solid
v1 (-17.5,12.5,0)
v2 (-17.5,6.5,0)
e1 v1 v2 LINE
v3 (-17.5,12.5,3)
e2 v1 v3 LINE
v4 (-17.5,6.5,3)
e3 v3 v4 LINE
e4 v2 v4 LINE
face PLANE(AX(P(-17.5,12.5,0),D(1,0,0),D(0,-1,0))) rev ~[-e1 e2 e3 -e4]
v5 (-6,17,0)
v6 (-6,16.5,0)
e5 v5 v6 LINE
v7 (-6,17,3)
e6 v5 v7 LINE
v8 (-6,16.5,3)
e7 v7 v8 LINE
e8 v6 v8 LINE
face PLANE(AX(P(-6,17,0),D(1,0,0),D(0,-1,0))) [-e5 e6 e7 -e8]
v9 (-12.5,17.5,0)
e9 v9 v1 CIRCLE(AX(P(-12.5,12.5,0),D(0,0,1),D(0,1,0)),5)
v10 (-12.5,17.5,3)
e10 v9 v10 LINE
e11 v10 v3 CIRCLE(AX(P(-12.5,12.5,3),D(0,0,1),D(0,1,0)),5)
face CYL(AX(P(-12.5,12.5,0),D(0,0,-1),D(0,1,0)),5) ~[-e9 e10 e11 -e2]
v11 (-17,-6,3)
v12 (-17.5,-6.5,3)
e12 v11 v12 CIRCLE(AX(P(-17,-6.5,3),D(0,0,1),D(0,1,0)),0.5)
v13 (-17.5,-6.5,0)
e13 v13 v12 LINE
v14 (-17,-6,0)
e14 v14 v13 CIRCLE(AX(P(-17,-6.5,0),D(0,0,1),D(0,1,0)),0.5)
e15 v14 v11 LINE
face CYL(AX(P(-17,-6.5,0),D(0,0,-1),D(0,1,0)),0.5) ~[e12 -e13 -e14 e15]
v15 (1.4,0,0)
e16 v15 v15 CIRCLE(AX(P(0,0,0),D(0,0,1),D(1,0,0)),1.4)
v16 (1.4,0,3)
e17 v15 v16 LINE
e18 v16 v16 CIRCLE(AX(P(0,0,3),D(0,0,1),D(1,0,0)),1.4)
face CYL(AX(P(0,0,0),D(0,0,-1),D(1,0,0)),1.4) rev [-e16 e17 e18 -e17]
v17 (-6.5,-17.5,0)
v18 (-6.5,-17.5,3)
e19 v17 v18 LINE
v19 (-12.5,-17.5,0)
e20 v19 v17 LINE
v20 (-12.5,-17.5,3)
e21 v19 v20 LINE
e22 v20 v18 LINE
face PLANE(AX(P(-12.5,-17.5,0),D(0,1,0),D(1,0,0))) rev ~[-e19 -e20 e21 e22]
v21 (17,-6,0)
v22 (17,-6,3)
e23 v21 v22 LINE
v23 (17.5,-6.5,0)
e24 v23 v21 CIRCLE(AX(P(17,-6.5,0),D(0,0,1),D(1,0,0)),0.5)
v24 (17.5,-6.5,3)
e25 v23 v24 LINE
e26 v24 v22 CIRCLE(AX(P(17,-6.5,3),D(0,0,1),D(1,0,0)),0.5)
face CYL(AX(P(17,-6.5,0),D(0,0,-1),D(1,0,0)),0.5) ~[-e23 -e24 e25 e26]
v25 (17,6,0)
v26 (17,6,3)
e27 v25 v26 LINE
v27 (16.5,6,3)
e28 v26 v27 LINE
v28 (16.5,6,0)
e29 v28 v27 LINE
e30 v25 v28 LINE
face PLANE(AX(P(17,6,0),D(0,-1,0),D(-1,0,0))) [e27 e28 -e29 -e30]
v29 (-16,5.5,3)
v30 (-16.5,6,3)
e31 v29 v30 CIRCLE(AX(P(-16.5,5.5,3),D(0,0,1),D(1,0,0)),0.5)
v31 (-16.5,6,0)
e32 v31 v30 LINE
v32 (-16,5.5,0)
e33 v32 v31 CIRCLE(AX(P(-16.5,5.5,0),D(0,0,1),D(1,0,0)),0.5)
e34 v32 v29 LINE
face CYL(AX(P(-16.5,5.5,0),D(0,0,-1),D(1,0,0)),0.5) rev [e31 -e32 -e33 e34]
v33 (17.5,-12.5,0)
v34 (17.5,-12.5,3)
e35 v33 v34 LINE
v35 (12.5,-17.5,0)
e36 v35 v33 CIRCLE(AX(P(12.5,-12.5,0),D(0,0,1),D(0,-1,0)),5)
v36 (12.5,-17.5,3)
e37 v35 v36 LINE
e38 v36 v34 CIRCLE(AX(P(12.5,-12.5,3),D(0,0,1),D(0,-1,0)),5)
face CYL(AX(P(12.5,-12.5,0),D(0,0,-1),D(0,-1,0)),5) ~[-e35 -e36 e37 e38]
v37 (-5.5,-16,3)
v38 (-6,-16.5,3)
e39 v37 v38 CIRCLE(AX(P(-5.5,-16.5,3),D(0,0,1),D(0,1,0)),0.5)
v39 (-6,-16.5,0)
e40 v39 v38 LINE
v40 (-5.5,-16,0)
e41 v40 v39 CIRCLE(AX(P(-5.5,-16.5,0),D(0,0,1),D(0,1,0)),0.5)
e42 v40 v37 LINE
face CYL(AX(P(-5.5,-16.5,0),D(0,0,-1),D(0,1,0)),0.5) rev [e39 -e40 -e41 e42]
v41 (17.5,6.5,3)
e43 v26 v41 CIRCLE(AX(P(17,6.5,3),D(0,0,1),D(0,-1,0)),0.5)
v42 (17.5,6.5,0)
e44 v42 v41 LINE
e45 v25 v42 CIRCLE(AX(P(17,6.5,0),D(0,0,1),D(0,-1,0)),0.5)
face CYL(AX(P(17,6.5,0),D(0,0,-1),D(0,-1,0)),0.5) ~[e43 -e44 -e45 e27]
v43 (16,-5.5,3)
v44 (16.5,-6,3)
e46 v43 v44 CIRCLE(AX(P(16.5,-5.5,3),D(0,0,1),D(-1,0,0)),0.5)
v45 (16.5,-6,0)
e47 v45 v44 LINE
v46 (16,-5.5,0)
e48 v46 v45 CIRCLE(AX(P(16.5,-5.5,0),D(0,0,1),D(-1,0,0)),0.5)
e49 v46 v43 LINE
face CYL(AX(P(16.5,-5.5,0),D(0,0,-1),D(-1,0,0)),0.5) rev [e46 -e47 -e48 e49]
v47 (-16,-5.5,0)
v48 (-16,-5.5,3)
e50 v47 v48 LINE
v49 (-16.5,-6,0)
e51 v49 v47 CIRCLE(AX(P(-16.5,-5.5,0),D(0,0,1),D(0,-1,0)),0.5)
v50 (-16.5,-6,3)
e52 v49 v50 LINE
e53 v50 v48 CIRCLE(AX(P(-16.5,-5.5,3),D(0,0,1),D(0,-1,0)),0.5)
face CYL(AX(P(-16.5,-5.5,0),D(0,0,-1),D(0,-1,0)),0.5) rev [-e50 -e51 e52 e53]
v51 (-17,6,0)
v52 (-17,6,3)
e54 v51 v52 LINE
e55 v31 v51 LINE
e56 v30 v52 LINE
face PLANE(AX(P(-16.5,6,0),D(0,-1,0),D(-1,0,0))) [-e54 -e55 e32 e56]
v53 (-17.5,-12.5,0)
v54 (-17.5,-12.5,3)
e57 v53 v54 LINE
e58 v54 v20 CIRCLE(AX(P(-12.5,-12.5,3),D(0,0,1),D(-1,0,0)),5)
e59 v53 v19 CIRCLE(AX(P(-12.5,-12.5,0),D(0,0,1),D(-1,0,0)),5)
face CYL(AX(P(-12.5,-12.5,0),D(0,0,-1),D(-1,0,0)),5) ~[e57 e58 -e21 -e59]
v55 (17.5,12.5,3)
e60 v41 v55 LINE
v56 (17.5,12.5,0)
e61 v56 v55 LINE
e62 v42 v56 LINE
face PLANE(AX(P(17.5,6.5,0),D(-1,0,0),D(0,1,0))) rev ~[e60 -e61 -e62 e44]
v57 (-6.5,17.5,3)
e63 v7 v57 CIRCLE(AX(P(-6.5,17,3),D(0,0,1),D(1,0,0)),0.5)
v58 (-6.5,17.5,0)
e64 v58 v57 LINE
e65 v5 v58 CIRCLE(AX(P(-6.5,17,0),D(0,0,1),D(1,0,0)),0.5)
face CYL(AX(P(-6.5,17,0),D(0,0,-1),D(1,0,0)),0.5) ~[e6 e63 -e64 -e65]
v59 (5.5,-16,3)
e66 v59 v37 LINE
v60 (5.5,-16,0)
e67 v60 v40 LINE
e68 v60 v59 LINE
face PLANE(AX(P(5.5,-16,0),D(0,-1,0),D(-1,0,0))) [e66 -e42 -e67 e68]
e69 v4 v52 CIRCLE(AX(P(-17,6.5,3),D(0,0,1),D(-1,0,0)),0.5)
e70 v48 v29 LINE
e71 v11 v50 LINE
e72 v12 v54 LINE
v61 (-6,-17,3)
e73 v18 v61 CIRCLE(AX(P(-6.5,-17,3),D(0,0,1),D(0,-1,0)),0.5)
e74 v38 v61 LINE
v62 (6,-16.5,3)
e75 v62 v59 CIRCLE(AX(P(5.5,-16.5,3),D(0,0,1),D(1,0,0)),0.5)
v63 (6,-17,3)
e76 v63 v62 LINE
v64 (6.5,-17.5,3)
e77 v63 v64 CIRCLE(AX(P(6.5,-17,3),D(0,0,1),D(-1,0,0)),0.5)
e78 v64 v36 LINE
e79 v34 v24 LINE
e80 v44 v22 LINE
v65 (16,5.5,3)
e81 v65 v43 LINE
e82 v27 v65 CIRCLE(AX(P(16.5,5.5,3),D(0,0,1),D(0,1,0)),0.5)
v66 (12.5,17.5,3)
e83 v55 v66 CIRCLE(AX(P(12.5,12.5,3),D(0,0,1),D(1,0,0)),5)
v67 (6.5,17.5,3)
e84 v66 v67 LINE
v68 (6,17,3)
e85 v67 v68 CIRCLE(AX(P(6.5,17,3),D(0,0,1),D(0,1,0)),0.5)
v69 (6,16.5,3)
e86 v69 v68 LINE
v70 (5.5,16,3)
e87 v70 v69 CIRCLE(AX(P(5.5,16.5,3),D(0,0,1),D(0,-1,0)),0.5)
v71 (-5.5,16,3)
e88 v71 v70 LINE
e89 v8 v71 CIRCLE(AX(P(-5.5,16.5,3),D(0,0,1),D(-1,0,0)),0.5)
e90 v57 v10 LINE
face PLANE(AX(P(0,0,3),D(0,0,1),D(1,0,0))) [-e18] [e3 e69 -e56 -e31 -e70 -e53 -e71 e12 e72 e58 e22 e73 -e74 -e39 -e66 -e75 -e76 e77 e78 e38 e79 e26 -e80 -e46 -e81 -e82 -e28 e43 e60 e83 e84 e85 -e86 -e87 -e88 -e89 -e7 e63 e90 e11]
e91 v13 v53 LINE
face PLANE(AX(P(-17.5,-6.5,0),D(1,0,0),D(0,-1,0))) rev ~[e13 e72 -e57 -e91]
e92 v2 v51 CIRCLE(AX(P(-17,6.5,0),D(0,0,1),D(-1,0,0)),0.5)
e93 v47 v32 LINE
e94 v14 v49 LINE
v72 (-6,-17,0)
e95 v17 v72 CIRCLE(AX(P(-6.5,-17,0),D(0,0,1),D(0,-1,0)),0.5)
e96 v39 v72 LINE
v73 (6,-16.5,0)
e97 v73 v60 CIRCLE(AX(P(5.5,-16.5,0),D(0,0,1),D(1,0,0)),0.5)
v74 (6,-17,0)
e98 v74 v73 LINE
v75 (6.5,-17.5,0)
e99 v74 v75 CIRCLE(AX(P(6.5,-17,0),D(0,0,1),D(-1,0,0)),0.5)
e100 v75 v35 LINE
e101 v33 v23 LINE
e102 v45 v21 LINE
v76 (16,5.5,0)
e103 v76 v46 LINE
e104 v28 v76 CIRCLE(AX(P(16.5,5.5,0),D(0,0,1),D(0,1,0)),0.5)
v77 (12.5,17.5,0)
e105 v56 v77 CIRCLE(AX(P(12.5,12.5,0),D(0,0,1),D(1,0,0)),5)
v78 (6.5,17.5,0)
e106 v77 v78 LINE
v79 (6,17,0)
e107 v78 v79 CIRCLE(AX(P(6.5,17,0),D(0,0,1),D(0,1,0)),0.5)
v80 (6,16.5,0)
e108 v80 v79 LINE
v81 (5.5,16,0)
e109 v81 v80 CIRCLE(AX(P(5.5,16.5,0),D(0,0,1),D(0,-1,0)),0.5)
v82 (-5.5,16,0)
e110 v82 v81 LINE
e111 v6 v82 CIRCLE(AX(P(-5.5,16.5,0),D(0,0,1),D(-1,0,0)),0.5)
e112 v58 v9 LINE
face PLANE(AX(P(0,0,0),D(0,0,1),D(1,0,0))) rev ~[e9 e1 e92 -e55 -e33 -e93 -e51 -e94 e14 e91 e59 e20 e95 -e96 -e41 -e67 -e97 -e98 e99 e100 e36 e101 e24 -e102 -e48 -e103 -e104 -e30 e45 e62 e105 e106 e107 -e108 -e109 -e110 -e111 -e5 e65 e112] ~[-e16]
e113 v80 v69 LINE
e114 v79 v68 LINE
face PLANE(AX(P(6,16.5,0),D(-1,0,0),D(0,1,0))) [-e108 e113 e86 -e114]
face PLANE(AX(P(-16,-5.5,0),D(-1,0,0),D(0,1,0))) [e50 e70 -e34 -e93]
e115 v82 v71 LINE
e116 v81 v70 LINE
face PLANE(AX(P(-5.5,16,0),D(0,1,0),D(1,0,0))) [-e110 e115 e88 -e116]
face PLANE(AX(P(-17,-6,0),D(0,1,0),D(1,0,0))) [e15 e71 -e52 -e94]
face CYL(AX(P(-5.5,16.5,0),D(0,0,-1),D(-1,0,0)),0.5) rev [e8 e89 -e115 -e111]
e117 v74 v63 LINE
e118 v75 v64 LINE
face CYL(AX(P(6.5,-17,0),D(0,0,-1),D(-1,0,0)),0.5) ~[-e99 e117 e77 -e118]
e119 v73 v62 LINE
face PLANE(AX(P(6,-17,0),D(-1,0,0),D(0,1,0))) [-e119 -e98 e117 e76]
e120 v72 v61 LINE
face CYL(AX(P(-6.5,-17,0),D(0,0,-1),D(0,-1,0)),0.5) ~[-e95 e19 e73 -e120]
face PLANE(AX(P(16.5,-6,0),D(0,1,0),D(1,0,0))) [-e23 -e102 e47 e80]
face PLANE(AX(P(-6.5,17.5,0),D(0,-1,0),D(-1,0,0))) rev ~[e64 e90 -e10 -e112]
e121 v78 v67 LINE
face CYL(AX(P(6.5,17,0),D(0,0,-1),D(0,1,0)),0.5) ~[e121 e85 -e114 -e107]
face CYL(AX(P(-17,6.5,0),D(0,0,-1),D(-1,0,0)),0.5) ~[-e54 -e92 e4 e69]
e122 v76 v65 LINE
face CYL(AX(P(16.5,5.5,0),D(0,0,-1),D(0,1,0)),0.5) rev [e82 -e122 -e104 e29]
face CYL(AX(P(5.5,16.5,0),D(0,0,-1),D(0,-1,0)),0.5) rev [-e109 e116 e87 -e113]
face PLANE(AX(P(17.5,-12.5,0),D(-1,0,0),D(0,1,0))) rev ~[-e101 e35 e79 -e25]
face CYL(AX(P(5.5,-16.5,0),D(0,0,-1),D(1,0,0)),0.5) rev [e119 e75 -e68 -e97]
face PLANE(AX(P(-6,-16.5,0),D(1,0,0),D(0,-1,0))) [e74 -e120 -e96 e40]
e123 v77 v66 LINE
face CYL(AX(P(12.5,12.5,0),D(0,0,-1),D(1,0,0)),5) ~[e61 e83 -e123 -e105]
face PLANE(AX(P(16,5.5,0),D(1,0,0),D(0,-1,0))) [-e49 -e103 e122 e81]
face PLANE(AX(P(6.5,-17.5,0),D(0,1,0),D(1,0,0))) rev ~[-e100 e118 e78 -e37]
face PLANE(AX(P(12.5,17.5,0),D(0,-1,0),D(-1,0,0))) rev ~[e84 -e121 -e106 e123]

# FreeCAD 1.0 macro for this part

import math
import FreeCAD as App
import Part
import Sketcher
from FreeCAD import Vector

doc = App.newDocument("Part")
body = doc.addObject("PartDesign::Body", "Body")

sketch1 = body.newObject("Sketcher::SketchObject", "Sketch")
sketch1.AttachmentSupport = (doc.getObject("XY_Plane"), [""])
sketch1.MapMode = "FlatFace"
sketch1.addGeometry(Part.LineSegment(Vector(-16.5, -6, 0), Vector(-17, -6, 0)), False)
sketch1.addGeometry(Part.ArcOfCircle(Part.Circle(Vector(-17, -6.5, 0), Vector(0, 0, 1), 0.5), math.radians(90), math.radians(180)), False)
sketch1.addGeometry(Part.LineSegment(Vector(-17.5, -6.5, 0), Vector(-17.5, -12.5, 0)), False)
sketch1.addGeometry(Part.ArcOfCircle(Part.Circle(Vector(-12.5, -12.5, 0), Vector(0, 0, 1), 5), math.radians(180), math.radians(270)), False)
sketch1.addGeometry(Part.LineSegment(Vector(-12.5, -17.5, 0), Vector(-6.5, -17.5, 0)), False)
sketch1.addGeometry(Part.ArcOfCircle(Part.Circle(Vector(-6.5, -17, 0), Vector(0, 0, 1), 0.5), math.radians(-90), math.radians(0)), False)
sketch1.addGeometry(Part.LineSegment(Vector(-6, -17, 0), Vector(-6, -16.5, 0)), False)
sketch1.addGeometry(Part.ArcOfCircle(Part.Circle(Vector(-5.5, -16.5, 0), Vector(0, 0, 1), 0.5), math.radians(90), math.radians(180)), False)
sketch1.addGeometry(Part.LineSegment(Vector(-5.5, -16, 0), Vector(5.5, -16, 0)), False)
sketch1.addGeometry(Part.ArcOfCircle(Part.Circle(Vector(5.5, -16.5, 0), Vector(0, 0, 1), 0.5), math.radians(0), math.radians(90)), False)
sketch1.addGeometry(Part.LineSegment(Vector(6, -16.5, 0), Vector(6, -17, 0)), False)
sketch1.addGeometry(Part.ArcOfCircle(Part.Circle(Vector(6.5, -17, 0), Vector(0, 0, 1), 0.5), math.radians(180), math.radians(270)), False)
sketch1.addGeometry(Part.LineSegment(Vector(6.5, -17.5, 0), Vector(12.5, -17.5, 0)), False)
sketch1.addGeometry(Part.ArcOfCircle(Part.Circle(Vector(12.5, -12.5, 0), Vector(0, 0, 1), 5), math.radians(-90), math.radians(0)), False)
sketch1.addGeometry(Part.LineSegment(Vector(17.5, -12.5, 0), Vector(17.5, -6.5, 0)), False)
sketch1.addGeometry(Part.ArcOfCircle(Part.Circle(Vector(17, -6.5, 0), Vector(0, 0, 1), 0.5), math.radians(0), math.radians(90)), False)
sketch1.addGeometry(Part.LineSegment(Vector(17, -6, 0), Vector(16.5, -6, 0)), False)
sketch1.addGeometry(Part.ArcOfCircle(Part.Circle(Vector(16.5, -5.5, 0), Vector(0, 0, 1), 0.5), math.radians(180), math.radians(270)), False)
sketch1.addGeometry(Part.LineSegment(Vector(16, -5.5, 0), Vector(16, 5.5, 0)), False)
sketch1.addGeometry(Part.ArcOfCircle(Part.Circle(Vector(16.5, 5.5, 0), Vector(0, 0, 1), 0.5), math.radians(90), math.radians(180)), False)
sketch1.addGeometry(Part.LineSegment(Vector(16.5, 6, 0), Vector(17, 6, 0)), False)
sketch1.addGeometry(Part.ArcOfCircle(Part.Circle(Vector(17, 6.5, 0), Vector(0, 0, 1), 0.5), math.radians(-90), math.radians(0)), False)
sketch1.addGeometry(Part.LineSegment(Vector(17.5, 6.5, 0), Vector(17.5, 12.5, 0)), False)
sketch1.addGeometry(Part.ArcOfCircle(Part.Circle(Vector(12.5, 12.5, 0), Vector(0, 0, 1), 5), math.radians(0), math.radians(90)), False)
sketch1.addGeometry(Part.LineSegment(Vector(12.5, 17.5, 0), Vector(6.5, 17.5, 0)), False)
sketch1.addGeometry(Part.ArcOfCircle(Part.Circle(Vector(6.5, 17, 0), Vector(0, 0, 1), 0.5), math.radians(90), math.radians(180)), False)
sketch1.addGeometry(Part.LineSegment(Vector(6, 17, 0), Vector(6, 16.5, 0)), False)
sketch1.addGeometry(Part.ArcOfCircle(Part.Circle(Vector(5.5, 16.5, 0), Vector(0, 0, 1), 0.5), math.radians(-90), math.radians(0)), False)
sketch1.addGeometry(Part.LineSegment(Vector(5.5, 16, 0), Vector(-5.5, 16, 0)), False)
sketch1.addGeometry(Part.ArcOfCircle(Part.Circle(Vector(-5.5, 16.5, 0), Vector(0, 0, 1), 0.5), math.radians(180), math.radians(270)), False)
sketch1.addGeometry(Part.LineSegment(Vector(-6, 16.5, 0), Vector(-6, 17, 0)), False)
sketch1.addGeometry(Part.ArcOfCircle(Part.Circle(Vector(-6.5, 17, 0), Vector(0, 0, 1), 0.5), math.radians(0), math.radians(90)), False)
sketch1.addGeometry(Part.LineSegment(Vector(-6.5, 17.5, 0), Vector(-12.5, 17.5, 0)), False)
sketch1.addGeometry(Part.ArcOfCircle(Part.Circle(Vector(-12.5, 12.5, 0), Vector(0, 0, 1), 5), math.radians(90), math.radians(180)), False)
sketch1.addGeometry(Part.LineSegment(Vector(-17.5, 12.5, 0), Vector(-17.5, 6.5, 0)), False)
sketch1.addGeometry(Part.ArcOfCircle(Part.Circle(Vector(-17, 6.5, 0), Vector(0, 0, 1), 0.5), math.radians(180), math.radians(270)), False)
sketch1.addGeometry(Part.LineSegment(Vector(-17, 6, 0), Vector(-16.5, 6, 0)), False)
sketch1.addGeometry(Part.ArcOfCircle(Part.Circle(Vector(-16.5, 5.5, 0), Vector(0, 0, 1), 0.5), math.radians(0), math.radians(90)), False)
sketch1.addGeometry(Part.LineSegment(Vector(-16, 5.5, 0), Vector(-16, -5.5, 0)), False)
sketch1.addGeometry(Part.ArcOfCircle(Part.Circle(Vector(-16.5, -5.5, 0), Vector(0, 0, 1), 0.5), math.radians(-90), math.radians(0)), False)
sketch1.addGeometry(Part.Circle(Vector(0, 0, 0), Vector(0, 0, 1), 1.4), False)
sketch1.addConstraint(Sketcher.Constraint("Tangent", 0, 2, 1, 1))
sketch1.addConstraint(Sketcher.Constraint("Tangent", 1, 2, 2, 1))
sketch1.addConstraint(Sketcher.Constraint("Tangent", 2, 2, 3, 1))
sketch1.addConstraint(Sketcher.Constraint("Tangent", 3, 2, 4, 1))
sketch1.addConstraint(Sketcher.Constraint("Tangent", 4, 2, 5, 1))
sketch1.addConstraint(Sketcher.Constraint("Tangent", 5, 2, 6, 1))
sketch1.addConstraint(Sketcher.Constraint("Tangent", 6, 2, 7, 2))
sketch1.addConstraint(Sketcher.Constraint("Tangent", 7, 1, 8, 1))
sketch1.addConstraint(Sketcher.Constraint("Tangent", 8, 2, 9, 2))
sketch1.addConstraint(Sketcher.Constraint("Tangent", 9, 1, 10, 1))
sketch1.addConstraint(Sketcher.Constraint("Tangent", 10, 2, 11, 1))
sketch1.addConstraint(Sketcher.Constraint("Tangent", 11, 2, 12, 1))
sketch1.addConstraint(Sketcher.Constraint("Tangent", 12, 2, 13, 1))
sketch1.addConstraint(Sketcher.Constraint("Tangent", 13, 2, 14, 1))
sketch1.addConstraint(Sketcher.Constraint("Tangent", 14, 2, 15, 1))
sketch1.addConstraint(Sketcher.Constraint("Tangent", 15, 2, 16, 1))
sketch1.addConstraint(Sketcher.Constraint("Tangent", 16, 2, 17, 2))
sketch1.addConstraint(Sketcher.Constraint("Tangent", 17, 1, 18, 1))
sketch1.addConstraint(Sketcher.Constraint("Tangent", 18, 2, 19, 2))
sketch1.addConstraint(Sketcher.Constraint("Tangent", 19, 1, 20, 1))
sketch1.addConstraint(Sketcher.Constraint("Tangent", 20, 2, 21, 1))
sketch1.addConstraint(Sketcher.Constraint("Tangent", 21, 2, 22, 1))
sketch1.addConstraint(Sketcher.Constraint("Tangent", 22, 2, 23, 1))
sketch1.addConstraint(Sketcher.Constraint("Tangent", 23, 2, 24, 1))
sketch1.addConstraint(Sketcher.Constraint("Tangent", 24, 2, 25, 1))
sketch1.addConstraint(Sketcher.Constraint("Tangent", 25, 2, 26, 1))
sketch1.addConstraint(Sketcher.Constraint("Tangent", 26, 2, 27, 2))
sketch1.addConstraint(Sketcher.Constraint("Tangent", 27, 1, 28, 1))
sketch1.addConstraint(Sketcher.Constraint("Tangent", 28, 2, 29, 2))
sketch1.addConstraint(Sketcher.Constraint("Tangent", 29, 1, 30, 1))
sketch1.addConstraint(Sketcher.Constraint("Tangent", 30, 2, 31, 1))
sketch1.addConstraint(Sketcher.Constraint("Tangent", 31, 2, 32, 1))
sketch1.addConstraint(Sketcher.Constraint("Tangent", 32, 2, 33, 1))
sketch1.addConstraint(Sketcher.Constraint("Tangent", 33, 2, 34, 1))
sketch1.addConstraint(Sketcher.Constraint("Tangent", 34, 2, 35, 1))
sketch1.addConstraint(Sketcher.Constraint("Tangent", 35, 2, 36, 1))
sketch1.addConstraint(Sketcher.Constraint("Tangent", 36, 2, 37, 2))
sketch1.addConstraint(Sketcher.Constraint("Tangent", 37, 1, 38, 1))
sketch1.addConstraint(Sketcher.Constraint("Tangent", 38, 2, 39, 2))
sketch1.addConstraint(Sketcher.Constraint("Tangent", 39, 1, 0, 1))
sketch1.addConstraint(Sketcher.Constraint("Horizontal", 0))
sketch1.addConstraint(Sketcher.Constraint("Vertical", 2))
sketch1.addConstraint(Sketcher.Constraint("Horizontal", 4))
sketch1.addConstraint(Sketcher.Constraint("Vertical", 6))
sketch1.addConstraint(Sketcher.Constraint("Horizontal", 8))
sketch1.addConstraint(Sketcher.Constraint("Vertical", 10))
sketch1.addConstraint(Sketcher.Constraint("Horizontal", 12))
sketch1.addConstraint(Sketcher.Constraint("Vertical", 14))
sketch1.addConstraint(Sketcher.Constraint("Horizontal", 16))
sketch1.addConstraint(Sketcher.Constraint("Vertical", 18))
sketch1.addConstraint(Sketcher.Constraint("Horizontal", 20))
sketch1.addConstraint(Sketcher.Constraint("Vertical", 22))
sketch1.addConstraint(Sketcher.Constraint("Horizontal", 24))
sketch1.addConstraint(Sketcher.Constraint("Vertical", 26))
sketch1.addConstraint(Sketcher.Constraint("Horizontal", 28))
sketch1.addConstraint(Sketcher.Constraint("Vertical", 30))
sketch1.addConstraint(Sketcher.Constraint("Horizontal", 32))
sketch1.addConstraint(Sketcher.Constraint("Vertical", 34))
sketch1.addConstraint(Sketcher.Constraint("Horizontal", 36))
sketch1.addConstraint(Sketcher.Constraint("Vertical", 38))
sketch1.addConstraint(Sketcher.Constraint("Coincident", 40, 3, -1, 1))
sketch1.addConstraint(Sketcher.Constraint("Equal", 1, 5))
sketch1.addConstraint(Sketcher.Constraint("Equal", 5, 7))
sketch1.addConstraint(Sketcher.Constraint("Equal", 7, 9))
sketch1.addConstraint(Sketcher.Constraint("Equal", 9, 11))
sketch1.addConstraint(Sketcher.Constraint("Equal", 3, 13))
sketch1.addConstraint(Sketcher.Constraint("Equal", 11, 15))
sketch1.addConstraint(Sketcher.Constraint("Equal", 15, 17))
sketch1.addConstraint(Sketcher.Constraint("Equal", 17, 19))
sketch1.addConstraint(Sketcher.Constraint("Equal", 19, 21))
sketch1.addConstraint(Sketcher.Constraint("Equal", 13, 23))
sketch1.addConstraint(Sketcher.Constraint("Equal", 21, 25))
sketch1.addConstraint(Sketcher.Constraint("Equal", 25, 27))
sketch1.addConstraint(Sketcher.Constraint("Equal", 27, 29))
sketch1.addConstraint(Sketcher.Constraint("Equal", 29, 31))
sketch1.addConstraint(Sketcher.Constraint("Equal", 23, 33))
sketch1.addConstraint(Sketcher.Constraint("Equal", 31, 35))
sketch1.addConstraint(Sketcher.Constraint("Equal", 35, 37))
sketch1.addConstraint(Sketcher.Constraint("Equal", 37, 39))
sketch1.addConstraint(Sketcher.Constraint("Symmetric", 1, 3, 21, 3, -1, 1))
sketch1.addConstraint(Sketcher.Constraint("Symmetric", 5, 3, 25, 3, -1, 1))
sketch1.addConstraint(Sketcher.Constraint("Symmetric", 9, 3, 29, 3, -1, 1))
sketch1.addConstraint(Sketcher.Constraint("Symmetric", 13, 3, 33, 3, -1, 1))
sketch1.addConstraint(Sketcher.Constraint("Symmetric", 17, 3, 37, 3, -1, 1))
sketch1.addConstraint(Sketcher.Constraint("Symmetric", 5, 3, 11, 3, -2))
sketch1.addConstraint(Sketcher.Constraint("Symmetric", 1, 3, 15, 3, -2))
sketch1.addConstraint(Sketcher.Constraint("Equal", 32, 2))
sketch1.addConstraint(Sketcher.Constraint("Equal", 36, 6))
sketch1.addConstraint(Sketcher.Constraint("Equal", 28, 18))
sketch1.addConstraint(Sketcher.Constraint("Radius", 3, 5.0))
sketch1.addConstraint(Sketcher.Constraint("Diameter", 40, 2.8))
sketch1.addConstraint(Sketcher.Constraint("Radius", 1, 0.5))
sketch1.addConstraint(Sketcher.Constraint("DistanceX", 0, 2, 0, 1, 0.5))
sketch1.addConstraint(Sketcher.Constraint("DistanceY", 7, 1, -1, 1, 16.0))
sketch1.addConstraint(Sketcher.Constraint("DistanceX", 4, 1, 4, 2, 6.0))
pad1 = body.newObject("PartDesign::Pad", "Pad")
pad1.Profile = sketch1
pad1.Length = 3

doc.recompute()
